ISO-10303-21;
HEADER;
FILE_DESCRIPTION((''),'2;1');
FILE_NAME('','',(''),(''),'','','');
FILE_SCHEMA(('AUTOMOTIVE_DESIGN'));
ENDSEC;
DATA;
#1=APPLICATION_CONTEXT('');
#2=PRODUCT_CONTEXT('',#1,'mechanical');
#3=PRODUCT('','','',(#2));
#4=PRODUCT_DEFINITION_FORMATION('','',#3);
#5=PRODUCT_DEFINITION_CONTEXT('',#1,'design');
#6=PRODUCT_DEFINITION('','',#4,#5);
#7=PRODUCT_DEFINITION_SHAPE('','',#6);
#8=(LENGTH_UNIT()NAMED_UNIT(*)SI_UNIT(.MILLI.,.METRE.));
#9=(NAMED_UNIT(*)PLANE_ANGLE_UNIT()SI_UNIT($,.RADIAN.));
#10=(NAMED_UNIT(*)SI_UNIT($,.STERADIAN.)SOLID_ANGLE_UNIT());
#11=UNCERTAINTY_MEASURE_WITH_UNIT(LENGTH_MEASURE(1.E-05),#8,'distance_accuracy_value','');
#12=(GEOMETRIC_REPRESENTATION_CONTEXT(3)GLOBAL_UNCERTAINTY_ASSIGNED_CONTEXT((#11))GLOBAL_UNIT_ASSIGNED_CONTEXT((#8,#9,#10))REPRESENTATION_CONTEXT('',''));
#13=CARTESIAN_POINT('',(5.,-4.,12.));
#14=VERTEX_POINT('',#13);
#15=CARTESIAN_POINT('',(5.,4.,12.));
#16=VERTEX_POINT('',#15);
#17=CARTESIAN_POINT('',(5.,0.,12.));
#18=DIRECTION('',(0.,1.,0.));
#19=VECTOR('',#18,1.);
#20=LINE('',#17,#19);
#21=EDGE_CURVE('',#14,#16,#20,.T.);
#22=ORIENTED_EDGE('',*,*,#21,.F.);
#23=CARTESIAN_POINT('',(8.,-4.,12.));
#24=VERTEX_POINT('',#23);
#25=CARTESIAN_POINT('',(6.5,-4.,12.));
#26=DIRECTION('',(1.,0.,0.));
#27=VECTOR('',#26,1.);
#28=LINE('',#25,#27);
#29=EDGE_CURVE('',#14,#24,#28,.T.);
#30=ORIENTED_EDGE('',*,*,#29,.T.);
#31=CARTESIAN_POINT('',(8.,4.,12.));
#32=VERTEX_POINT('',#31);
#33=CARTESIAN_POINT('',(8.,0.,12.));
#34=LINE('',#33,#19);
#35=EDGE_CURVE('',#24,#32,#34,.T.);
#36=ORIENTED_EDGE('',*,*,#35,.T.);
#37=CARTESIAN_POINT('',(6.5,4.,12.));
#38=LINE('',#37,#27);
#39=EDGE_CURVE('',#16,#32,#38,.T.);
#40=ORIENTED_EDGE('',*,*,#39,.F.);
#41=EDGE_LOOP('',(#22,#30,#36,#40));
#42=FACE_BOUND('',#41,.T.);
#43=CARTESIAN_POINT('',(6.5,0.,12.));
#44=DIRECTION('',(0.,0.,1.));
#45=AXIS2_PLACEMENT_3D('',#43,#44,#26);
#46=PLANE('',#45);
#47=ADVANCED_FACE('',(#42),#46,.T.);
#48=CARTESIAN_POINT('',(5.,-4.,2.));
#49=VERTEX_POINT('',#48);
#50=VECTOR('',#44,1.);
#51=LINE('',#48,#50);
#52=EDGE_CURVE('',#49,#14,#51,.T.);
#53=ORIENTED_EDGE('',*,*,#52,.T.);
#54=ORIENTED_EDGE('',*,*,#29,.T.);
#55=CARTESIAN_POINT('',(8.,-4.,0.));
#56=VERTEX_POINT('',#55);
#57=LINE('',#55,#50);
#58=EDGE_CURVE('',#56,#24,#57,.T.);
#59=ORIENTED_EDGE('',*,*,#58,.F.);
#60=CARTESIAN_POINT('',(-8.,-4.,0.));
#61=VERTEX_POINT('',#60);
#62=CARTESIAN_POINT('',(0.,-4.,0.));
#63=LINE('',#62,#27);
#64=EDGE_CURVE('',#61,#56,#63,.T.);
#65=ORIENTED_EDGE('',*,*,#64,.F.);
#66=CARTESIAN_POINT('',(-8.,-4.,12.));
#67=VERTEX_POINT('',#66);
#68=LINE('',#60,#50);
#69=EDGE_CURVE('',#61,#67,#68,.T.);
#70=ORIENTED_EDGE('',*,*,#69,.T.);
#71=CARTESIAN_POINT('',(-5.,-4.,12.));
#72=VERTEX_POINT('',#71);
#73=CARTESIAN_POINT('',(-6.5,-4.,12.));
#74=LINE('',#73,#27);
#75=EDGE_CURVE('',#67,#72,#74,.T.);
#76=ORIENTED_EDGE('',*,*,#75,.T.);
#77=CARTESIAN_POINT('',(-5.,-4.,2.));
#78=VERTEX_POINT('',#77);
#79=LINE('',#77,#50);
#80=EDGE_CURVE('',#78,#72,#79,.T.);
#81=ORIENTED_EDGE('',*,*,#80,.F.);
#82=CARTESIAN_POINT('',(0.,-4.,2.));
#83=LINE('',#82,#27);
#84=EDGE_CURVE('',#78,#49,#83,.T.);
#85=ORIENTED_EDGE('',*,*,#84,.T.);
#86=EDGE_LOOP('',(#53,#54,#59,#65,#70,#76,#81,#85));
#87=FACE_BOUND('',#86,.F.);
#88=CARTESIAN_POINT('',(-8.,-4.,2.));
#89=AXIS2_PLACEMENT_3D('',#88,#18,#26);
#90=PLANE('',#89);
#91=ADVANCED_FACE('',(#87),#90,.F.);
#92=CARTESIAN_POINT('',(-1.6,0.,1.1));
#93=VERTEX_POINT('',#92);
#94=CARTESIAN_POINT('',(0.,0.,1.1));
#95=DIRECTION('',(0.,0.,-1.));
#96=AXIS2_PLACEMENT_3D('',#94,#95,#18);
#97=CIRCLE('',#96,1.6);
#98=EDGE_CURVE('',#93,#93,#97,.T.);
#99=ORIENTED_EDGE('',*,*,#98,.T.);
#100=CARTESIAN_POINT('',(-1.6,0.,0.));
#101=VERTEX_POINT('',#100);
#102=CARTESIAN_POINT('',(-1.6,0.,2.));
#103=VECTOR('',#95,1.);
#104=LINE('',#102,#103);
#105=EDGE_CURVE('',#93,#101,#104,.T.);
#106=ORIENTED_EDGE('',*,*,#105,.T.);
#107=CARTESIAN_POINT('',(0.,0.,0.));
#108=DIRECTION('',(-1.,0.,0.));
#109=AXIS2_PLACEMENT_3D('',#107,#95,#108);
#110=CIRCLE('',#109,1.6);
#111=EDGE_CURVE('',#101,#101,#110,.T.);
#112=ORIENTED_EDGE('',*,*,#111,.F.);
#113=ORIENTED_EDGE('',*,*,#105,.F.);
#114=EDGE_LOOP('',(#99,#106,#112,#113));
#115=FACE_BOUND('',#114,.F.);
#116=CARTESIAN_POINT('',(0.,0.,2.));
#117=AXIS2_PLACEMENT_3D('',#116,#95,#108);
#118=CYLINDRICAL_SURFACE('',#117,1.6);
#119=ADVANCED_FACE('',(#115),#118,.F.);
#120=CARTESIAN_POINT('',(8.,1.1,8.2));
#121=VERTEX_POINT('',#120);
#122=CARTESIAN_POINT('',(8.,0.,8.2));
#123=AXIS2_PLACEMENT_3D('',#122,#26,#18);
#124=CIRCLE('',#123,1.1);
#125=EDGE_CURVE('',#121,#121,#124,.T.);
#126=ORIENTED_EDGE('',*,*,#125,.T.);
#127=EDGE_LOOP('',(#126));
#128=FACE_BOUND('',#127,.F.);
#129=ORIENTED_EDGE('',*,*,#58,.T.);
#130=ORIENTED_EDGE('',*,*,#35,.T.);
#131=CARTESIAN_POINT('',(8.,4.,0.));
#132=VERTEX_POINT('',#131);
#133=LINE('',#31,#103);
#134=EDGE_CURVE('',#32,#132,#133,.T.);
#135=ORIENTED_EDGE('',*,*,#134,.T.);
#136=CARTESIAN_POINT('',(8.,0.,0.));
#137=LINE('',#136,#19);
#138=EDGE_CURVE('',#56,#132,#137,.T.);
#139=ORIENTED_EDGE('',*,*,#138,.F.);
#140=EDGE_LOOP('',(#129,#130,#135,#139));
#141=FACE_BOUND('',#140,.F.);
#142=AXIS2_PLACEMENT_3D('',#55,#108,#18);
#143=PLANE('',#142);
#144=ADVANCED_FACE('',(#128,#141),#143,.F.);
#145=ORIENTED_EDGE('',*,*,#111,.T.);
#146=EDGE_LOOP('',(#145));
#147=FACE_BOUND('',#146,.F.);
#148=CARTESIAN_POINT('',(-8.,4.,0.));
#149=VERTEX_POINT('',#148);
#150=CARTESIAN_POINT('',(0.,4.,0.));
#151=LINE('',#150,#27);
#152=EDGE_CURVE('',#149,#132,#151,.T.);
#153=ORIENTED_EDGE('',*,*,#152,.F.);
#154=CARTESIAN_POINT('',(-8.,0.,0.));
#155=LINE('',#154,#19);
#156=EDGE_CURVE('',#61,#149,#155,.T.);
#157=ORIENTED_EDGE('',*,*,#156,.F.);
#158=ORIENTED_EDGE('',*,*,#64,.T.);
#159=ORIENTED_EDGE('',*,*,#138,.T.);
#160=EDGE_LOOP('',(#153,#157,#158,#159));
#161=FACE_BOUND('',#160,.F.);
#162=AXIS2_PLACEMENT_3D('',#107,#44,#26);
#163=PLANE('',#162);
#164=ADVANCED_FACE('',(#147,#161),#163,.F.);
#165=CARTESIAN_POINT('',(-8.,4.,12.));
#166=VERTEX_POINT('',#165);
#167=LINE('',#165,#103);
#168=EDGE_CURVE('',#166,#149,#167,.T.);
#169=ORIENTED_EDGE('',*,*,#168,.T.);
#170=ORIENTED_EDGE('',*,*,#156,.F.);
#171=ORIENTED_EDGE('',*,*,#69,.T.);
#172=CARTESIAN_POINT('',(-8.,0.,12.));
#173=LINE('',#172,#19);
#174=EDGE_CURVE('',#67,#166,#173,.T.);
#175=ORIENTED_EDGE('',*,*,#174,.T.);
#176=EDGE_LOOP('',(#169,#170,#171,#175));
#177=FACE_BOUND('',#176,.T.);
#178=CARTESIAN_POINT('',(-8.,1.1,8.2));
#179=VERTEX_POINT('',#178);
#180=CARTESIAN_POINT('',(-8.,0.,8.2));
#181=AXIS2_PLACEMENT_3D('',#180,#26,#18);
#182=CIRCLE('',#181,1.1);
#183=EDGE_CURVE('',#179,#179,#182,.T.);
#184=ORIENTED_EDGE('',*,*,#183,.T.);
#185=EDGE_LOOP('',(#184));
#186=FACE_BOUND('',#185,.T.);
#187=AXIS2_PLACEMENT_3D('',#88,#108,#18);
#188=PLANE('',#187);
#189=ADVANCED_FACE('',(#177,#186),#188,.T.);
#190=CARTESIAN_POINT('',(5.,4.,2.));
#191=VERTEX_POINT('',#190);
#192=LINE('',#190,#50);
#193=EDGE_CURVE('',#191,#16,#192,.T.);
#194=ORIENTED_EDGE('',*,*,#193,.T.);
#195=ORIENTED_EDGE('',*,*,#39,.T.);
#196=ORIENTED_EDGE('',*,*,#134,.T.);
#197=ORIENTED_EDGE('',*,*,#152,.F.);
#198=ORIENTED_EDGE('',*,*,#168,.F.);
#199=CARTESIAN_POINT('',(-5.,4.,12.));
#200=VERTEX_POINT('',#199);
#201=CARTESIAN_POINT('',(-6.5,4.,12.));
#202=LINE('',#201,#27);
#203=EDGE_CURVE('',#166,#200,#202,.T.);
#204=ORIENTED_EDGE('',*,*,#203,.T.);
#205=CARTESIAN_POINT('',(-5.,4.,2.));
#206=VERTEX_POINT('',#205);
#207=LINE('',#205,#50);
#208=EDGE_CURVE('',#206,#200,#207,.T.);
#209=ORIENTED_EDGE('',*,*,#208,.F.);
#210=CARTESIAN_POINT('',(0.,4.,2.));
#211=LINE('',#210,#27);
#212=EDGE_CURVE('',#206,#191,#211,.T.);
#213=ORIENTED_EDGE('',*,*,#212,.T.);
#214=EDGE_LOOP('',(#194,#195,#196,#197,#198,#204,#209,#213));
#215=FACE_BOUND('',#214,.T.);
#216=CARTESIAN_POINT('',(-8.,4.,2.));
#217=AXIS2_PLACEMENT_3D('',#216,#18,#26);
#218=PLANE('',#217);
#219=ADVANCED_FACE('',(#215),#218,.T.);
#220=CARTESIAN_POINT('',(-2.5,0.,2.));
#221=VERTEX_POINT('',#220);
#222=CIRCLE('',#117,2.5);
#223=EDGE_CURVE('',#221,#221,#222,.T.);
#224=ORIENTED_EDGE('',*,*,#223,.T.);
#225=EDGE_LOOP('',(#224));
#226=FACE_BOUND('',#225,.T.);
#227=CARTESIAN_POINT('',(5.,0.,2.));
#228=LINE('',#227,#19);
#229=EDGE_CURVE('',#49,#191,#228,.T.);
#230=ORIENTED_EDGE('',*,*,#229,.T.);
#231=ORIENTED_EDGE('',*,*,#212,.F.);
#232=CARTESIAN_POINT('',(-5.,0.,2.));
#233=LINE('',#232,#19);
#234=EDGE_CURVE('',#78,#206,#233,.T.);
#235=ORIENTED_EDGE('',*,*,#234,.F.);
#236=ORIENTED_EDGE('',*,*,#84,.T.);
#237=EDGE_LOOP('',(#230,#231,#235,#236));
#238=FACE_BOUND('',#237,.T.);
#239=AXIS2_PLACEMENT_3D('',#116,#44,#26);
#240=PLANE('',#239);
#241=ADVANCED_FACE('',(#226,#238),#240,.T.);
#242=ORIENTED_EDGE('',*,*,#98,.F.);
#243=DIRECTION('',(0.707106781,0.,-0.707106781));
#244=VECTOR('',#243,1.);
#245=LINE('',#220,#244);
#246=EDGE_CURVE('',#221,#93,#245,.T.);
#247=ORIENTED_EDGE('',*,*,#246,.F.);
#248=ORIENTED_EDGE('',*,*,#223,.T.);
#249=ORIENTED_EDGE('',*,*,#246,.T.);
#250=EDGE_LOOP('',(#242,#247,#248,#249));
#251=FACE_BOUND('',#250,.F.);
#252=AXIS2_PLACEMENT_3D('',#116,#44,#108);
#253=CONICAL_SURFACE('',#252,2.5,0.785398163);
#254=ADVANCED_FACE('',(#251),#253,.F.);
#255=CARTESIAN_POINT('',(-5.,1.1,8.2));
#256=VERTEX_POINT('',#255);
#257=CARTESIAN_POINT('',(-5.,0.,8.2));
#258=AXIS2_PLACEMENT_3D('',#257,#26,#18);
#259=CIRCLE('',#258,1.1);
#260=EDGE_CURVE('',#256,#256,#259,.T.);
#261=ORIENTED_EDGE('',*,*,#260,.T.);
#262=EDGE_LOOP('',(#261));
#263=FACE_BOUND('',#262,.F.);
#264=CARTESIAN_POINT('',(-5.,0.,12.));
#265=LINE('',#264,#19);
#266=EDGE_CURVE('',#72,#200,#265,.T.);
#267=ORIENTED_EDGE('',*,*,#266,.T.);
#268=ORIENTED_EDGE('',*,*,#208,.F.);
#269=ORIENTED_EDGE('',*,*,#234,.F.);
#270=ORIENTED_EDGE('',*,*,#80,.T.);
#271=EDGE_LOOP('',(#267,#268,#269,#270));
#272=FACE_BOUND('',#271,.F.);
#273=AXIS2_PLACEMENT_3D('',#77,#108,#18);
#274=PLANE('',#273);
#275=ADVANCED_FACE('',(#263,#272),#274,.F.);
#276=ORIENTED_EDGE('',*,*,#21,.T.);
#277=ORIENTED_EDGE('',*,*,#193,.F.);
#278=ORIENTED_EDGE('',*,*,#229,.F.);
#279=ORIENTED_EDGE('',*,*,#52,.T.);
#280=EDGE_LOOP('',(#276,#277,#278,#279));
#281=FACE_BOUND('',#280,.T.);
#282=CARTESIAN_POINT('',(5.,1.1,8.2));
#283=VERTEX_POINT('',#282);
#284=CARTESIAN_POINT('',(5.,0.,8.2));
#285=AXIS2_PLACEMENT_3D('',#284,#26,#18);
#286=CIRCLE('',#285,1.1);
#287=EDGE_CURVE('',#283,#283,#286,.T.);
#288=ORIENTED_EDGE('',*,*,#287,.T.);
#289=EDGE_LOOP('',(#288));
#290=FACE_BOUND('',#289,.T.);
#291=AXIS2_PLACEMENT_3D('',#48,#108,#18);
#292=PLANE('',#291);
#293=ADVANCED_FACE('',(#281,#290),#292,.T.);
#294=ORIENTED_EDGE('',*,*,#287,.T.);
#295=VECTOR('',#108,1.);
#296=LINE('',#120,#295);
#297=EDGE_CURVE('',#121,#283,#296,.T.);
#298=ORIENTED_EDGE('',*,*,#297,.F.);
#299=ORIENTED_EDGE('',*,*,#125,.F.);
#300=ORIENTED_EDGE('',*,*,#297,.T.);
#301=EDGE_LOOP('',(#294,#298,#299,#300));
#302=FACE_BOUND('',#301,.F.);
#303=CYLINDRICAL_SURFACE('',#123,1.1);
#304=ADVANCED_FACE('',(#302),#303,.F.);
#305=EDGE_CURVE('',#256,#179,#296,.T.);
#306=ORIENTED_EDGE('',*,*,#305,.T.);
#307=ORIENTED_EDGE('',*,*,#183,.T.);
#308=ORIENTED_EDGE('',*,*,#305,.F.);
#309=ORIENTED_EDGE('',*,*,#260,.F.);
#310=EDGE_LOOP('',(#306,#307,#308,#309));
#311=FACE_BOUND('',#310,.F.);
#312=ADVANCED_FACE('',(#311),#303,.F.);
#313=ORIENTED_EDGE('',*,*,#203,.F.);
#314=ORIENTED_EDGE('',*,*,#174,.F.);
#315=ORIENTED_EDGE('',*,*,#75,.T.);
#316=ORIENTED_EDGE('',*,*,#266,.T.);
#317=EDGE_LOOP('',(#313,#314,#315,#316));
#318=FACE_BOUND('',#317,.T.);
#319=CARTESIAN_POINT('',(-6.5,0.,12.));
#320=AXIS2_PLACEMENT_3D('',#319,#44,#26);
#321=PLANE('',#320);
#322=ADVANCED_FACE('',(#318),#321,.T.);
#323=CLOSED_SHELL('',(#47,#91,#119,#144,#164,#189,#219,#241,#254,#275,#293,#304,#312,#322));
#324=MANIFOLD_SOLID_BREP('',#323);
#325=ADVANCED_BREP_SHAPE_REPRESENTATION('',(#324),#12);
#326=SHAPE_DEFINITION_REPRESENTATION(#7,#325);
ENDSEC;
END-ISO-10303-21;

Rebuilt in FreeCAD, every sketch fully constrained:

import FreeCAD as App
import Part
import Sketcher

V = App.Vector
Q = App.Units.Quantity


def add_polygon(sketch, points):
    """Adds a closed chain of lines whose ends are joined by coincident constraints."""
    first, n = sketch.GeometryCount, len(points)
    for a, b in zip(points, points[1:] + points[:1]):
        sketch.addGeometry(Part.LineSegment(App.Vector(*a, 0), App.Vector(*b, 0)), False)
    for i in range(n):
        sketch.addConstraint(Sketcher.Constraint("Coincident", first + i, 2, first + (i + 1) % n, 1))

doc = App.newDocument("Part")
body = doc.addObject("PartDesign::Body", "Body")

# Sketch on XY plane
sketch1 = body.newObject("Sketcher::SketchObject", "Sketch")
sketch1.AttachmentSupport = (doc.getObject("XY_Plane"), [""])
sketch1.MapMode = "FlatFace"
add_polygon(sketch1, [(-8, 4), (-8, -4), (8, -4), (8, 4)])  # lines 0-3
sketch1.addConstraint([
    Sketcher.Constraint("Vertical", 0),
    Sketcher.Constraint("Horizontal", 1),
    Sketcher.Constraint("Vertical", 2),
    Sketcher.Constraint("Horizontal", 3),
    Sketcher.Constraint("Symmetric", 0, 2, 2, 2, -1, 1),
    Sketcher.Constraint("DistanceX", 1, 1, 1, 2, Q("16 mm")),
    Sketcher.Constraint("DistanceY", 0, 2, 0, 1, Q("8 mm")),
])
pad1 = body.newObject("PartDesign::Pad", "Pad")
pad1.Profile = sketch1
pad1.Length = 2

# Sketch on XY plane
sketch2 = body.newObject("Sketcher::SketchObject", "Sketch001")
sketch2.AttachmentSupport = (doc.getObject("XY_Plane"), [""])
sketch2.MapMode = "FlatFace"
sketch2.AttachmentOffset = App.Placement(V(0, 0, 2), App.Rotation())
add_polygon(sketch2, [(-8, 4), (-8, -4), (-5, -4), (-5, 4)])  # lines 0-3
add_polygon(sketch2, [(5, 4), (5, -4), (8, -4), (8, 4)])  # lines 4-7
sketch2.addConstraint([
    Sketcher.Constraint("Vertical", 0),
    Sketcher.Constraint("Horizontal", 1),
    Sketcher.Constraint("Vertical", 2),
    Sketcher.Constraint("Horizontal", 3),
    Sketcher.Constraint("Vertical", 4),
    Sketcher.Constraint("Horizontal", 5),
    Sketcher.Constraint("Vertical", 6),
    Sketcher.Constraint("Horizontal", 7),
    Sketcher.Constraint("Symmetric", 2, 2, 4, 2, -1, 1),
    Sketcher.Constraint("Symmetric", 0, 2, 6, 2, -1, 1),
    Sketcher.Constraint("Horizontal", 1, 2, 4, 2),
    Sketcher.Constraint("DistanceX", 1, 1, 1, 2, Q("3 mm")),
    Sketcher.Constraint("DistanceY", 0, 2, 0, 1, Q("8 mm")),
    Sketcher.Constraint("DistanceX", 0, 2, -1, 1, Q("8 mm")),
])
pad2 = body.newObject("PartDesign::Pad", "Pad001")
pad2.Profile = sketch2
pad2.Length = 10

# Sketch on YZ plane
sketch3 = body.newObject("Sketcher::SketchObject", "Sketch002")
sketch3.AttachmentSupport = (doc.getObject("YZ_Plane"), [""])
sketch3.MapMode = "FlatFace"
sketch3.AttachmentOffset = App.Placement(V(0, 0, 8), App.Rotation())
sketch3.addGeometry(Part.Circle(V(0, 8.2, 0), V(0, 0, 1), 1.1), False)
sketch3.addConstraint([
    Sketcher.Constraint("PointOnObject", 0, 3, -2),
    Sketcher.Constraint("Diameter", 0, Q("2.2 mm")),
    Sketcher.Constraint("DistanceY", -1, 1, 0, 3, Q("8.2 mm")),
])
pocket1 = body.newObject("PartDesign::Pocket", "Pocket")
pocket1.Profile = sketch3
pocket1.Type = "ThroughAll"

# Sketch on XY plane
sketch4 = body.newObject("Sketcher::SketchObject", "Sketch003")
sketch4.AttachmentSupport = (doc.getObject("XY_Plane"), [""])
sketch4.MapMode = "FlatFace"
sketch4.AttachmentOffset = App.Placement(V(0, 0, 2), App.Rotation())
sketch4.addGeometry(Part.Circle(V(0, 0, 0), V(0, 0, 1), 1.6), False)
sketch4.addConstraint([
    Sketcher.Constraint("Coincident", 0, 3, -1, 1),
    Sketcher.Constraint("Diameter", 0, Q("3.2 mm")),
])
doc.recompute()
hole = body.newObject("PartDesign::Hole", "Hole")
hole.Profile = sketch4
hole.ThreadType = "None"
hole.Diameter = 3.2
hole.DepthType = "ThroughAll"
hole.HoleCutType = "Countersink"
hole.HoleCutDiameter = 5
hole.HoleCutCountersinkAngle = 90

doc.recompute()
